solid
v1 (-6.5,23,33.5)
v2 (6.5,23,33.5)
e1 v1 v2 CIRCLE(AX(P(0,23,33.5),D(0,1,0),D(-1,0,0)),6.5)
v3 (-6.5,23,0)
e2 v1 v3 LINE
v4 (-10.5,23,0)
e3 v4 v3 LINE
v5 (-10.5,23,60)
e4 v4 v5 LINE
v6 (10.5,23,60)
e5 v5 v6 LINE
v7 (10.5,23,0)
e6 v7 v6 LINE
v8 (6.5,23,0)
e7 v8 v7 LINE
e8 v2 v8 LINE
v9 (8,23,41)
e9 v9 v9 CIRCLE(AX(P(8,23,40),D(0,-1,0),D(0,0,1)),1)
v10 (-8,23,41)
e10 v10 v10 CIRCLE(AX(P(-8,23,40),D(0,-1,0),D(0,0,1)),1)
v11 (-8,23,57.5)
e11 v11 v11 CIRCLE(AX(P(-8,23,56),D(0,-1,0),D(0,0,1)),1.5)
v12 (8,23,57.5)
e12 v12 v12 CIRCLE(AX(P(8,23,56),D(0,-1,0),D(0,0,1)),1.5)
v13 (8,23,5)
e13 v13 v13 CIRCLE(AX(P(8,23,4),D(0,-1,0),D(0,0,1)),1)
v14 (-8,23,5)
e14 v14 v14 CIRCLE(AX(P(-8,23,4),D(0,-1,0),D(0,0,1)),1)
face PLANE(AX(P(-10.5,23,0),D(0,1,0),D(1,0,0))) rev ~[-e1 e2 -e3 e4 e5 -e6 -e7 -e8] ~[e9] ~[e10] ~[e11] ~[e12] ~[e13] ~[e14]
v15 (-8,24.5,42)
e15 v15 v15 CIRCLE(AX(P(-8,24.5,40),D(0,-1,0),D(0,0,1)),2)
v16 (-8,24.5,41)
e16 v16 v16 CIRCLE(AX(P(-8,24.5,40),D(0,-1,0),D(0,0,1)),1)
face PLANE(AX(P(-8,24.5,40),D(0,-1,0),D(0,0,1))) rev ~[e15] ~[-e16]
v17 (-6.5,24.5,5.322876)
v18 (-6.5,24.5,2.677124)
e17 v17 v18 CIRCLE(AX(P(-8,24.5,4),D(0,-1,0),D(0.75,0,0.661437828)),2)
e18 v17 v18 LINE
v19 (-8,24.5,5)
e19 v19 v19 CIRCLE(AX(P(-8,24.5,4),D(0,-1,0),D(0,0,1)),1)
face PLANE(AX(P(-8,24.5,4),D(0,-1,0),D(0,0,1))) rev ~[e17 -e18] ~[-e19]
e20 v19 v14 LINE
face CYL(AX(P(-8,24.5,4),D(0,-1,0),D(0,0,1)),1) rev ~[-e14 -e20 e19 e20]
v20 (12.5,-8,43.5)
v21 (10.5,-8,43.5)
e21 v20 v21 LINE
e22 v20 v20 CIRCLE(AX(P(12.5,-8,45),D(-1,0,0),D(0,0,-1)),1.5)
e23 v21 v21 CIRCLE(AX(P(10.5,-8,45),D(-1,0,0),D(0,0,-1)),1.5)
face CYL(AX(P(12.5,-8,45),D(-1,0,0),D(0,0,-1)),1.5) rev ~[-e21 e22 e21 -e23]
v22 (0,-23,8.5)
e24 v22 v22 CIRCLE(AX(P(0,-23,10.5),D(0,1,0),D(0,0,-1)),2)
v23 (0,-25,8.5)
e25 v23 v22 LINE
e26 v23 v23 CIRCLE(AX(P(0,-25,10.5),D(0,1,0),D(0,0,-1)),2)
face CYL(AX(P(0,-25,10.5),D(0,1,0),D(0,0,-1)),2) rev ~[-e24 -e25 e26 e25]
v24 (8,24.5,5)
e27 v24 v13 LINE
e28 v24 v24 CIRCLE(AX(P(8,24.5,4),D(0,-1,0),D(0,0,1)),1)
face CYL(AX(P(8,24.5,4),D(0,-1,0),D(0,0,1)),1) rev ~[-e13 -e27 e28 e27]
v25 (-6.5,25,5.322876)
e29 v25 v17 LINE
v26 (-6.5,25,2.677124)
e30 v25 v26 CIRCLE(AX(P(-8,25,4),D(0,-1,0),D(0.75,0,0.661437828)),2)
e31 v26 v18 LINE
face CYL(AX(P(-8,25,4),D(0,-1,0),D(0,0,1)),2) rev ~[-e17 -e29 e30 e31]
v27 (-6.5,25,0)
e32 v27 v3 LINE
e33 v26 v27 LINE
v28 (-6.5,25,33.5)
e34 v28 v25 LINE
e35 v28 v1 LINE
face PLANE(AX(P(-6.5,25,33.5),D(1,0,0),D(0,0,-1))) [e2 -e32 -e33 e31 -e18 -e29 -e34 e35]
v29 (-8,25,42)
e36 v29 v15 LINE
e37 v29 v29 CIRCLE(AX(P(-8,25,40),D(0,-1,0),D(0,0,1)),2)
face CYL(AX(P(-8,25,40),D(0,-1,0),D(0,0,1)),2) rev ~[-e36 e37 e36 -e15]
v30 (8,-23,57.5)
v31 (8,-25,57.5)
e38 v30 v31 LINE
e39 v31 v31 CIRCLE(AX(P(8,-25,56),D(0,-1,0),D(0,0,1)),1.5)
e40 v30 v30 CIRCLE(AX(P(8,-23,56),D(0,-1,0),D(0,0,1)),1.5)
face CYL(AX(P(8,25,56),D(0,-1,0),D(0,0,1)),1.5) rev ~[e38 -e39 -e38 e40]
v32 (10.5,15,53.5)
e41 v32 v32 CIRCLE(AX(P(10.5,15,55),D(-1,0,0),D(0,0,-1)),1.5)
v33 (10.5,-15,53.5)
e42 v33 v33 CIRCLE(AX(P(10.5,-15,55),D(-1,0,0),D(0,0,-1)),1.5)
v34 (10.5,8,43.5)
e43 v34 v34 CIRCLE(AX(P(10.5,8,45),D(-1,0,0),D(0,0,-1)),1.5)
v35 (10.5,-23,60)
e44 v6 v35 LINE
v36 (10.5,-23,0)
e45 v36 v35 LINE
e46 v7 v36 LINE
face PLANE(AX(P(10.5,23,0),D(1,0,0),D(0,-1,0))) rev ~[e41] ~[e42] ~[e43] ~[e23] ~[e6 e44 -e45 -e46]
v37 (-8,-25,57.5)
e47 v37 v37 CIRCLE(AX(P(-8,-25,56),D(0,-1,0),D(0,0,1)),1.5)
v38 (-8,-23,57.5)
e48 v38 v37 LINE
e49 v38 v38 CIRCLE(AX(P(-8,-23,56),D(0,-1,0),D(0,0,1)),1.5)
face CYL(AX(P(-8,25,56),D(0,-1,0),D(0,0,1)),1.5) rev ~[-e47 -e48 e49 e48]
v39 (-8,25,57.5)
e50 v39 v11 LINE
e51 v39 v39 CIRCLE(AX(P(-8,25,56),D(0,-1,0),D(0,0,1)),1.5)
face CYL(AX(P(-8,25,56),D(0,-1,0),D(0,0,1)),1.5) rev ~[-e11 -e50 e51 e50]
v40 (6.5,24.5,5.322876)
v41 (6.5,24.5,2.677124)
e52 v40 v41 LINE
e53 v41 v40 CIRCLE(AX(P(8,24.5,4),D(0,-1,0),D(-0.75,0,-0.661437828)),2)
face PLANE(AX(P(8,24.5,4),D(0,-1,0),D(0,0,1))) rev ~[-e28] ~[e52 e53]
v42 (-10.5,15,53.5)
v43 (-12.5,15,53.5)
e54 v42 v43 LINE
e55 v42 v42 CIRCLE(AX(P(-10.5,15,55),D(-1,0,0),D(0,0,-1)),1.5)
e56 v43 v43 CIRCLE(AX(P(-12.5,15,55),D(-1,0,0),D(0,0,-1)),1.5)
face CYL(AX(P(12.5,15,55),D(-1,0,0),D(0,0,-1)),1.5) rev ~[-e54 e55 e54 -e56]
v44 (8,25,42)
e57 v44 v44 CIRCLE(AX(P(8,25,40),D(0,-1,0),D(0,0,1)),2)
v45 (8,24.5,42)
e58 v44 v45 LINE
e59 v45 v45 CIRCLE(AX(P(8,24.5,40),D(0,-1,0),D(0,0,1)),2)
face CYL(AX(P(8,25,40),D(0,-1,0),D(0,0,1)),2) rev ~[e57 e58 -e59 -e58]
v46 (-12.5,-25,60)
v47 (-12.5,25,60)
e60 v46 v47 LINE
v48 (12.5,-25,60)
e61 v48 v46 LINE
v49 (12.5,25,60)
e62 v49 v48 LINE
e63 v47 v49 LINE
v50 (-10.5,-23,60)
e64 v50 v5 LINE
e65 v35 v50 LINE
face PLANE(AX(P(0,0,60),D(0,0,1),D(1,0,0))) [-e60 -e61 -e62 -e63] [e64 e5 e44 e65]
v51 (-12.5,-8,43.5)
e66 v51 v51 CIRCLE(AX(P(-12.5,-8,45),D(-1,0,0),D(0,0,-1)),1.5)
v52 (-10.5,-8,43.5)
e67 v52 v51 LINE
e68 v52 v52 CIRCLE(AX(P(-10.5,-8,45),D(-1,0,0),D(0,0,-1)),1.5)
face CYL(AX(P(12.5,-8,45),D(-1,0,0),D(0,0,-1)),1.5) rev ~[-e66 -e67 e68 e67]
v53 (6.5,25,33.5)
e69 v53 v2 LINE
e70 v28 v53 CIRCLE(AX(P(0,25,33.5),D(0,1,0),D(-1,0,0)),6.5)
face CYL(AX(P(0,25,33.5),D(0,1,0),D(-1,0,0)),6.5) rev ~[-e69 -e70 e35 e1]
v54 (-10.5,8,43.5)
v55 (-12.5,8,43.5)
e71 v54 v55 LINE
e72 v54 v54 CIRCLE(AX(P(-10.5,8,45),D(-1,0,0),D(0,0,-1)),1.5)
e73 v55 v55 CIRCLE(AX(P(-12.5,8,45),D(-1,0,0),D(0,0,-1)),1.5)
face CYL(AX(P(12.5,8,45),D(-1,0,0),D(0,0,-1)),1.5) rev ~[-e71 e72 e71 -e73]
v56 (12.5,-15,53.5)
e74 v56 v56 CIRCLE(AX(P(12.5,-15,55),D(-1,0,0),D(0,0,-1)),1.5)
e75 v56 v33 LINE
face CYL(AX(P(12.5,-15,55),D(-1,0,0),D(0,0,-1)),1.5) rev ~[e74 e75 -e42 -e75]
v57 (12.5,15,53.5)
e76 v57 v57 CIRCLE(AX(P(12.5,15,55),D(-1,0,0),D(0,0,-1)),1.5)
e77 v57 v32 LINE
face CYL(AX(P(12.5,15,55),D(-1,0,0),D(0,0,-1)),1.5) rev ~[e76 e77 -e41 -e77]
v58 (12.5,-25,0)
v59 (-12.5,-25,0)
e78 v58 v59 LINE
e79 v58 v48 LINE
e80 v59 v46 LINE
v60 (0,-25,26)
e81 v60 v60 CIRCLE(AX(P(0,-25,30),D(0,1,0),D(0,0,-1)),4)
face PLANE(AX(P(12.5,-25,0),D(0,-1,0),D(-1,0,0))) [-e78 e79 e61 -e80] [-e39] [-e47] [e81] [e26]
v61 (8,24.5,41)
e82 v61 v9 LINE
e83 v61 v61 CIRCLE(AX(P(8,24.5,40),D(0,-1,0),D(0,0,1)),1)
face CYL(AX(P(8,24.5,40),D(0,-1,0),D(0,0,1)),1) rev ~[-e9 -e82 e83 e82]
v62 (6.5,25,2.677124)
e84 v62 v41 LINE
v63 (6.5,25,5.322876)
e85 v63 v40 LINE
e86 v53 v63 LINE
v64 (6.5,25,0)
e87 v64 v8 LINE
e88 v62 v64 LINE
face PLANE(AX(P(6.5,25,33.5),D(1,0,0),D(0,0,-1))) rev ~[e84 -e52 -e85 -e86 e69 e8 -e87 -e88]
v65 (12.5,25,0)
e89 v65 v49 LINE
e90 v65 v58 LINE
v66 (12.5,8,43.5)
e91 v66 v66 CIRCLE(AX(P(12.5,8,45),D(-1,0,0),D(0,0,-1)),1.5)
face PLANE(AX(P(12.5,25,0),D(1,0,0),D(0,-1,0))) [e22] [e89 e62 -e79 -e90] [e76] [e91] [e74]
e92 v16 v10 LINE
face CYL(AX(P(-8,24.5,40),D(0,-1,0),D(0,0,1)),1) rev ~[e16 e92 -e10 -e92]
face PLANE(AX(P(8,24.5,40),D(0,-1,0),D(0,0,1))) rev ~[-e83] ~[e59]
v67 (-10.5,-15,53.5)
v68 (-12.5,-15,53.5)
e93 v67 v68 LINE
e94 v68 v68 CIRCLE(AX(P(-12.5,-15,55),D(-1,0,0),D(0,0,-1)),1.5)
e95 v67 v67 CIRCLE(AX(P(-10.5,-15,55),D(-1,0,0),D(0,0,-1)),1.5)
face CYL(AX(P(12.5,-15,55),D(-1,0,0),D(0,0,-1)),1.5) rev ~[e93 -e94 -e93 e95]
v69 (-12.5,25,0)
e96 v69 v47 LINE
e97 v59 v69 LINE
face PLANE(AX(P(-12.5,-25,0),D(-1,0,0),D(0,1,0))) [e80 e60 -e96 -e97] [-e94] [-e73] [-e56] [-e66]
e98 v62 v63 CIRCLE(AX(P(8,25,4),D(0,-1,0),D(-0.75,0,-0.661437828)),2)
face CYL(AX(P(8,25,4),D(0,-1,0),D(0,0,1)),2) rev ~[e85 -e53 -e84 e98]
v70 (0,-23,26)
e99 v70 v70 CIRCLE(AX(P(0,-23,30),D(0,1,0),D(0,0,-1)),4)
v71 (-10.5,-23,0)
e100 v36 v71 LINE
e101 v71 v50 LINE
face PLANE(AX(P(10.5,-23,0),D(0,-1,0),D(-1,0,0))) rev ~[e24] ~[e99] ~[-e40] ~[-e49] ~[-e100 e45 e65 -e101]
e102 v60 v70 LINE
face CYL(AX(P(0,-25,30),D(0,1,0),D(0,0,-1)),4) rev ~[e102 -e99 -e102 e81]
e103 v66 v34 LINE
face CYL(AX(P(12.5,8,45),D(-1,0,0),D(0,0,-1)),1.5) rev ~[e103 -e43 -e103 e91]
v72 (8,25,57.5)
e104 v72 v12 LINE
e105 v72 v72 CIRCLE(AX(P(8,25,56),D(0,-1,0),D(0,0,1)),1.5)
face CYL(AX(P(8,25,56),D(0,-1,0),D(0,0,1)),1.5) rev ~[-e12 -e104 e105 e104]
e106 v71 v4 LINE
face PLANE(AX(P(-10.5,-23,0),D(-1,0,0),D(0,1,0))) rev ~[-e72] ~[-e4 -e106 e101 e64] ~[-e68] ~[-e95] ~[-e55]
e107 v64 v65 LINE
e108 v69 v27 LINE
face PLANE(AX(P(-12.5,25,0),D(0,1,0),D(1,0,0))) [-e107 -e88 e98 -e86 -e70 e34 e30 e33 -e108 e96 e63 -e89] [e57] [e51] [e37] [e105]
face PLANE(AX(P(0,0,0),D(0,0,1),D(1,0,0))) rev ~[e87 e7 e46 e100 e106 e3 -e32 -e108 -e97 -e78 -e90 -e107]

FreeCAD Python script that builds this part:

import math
import FreeCAD as App
import Part
import Sketcher
from FreeCAD import Vector
Q = App.Units.Quantity

doc = App.newDocument("Part")
body = doc.addObject("PartDesign::Body", "Body")

sketch1 = body.newObject("Sketcher::SketchObject", "Sketch")
sketch1.AttachmentSupport = (doc.getObject("XY_Plane"), [""])
sketch1.MapMode = "FlatFace"
sketch1.addGeometry([
    Part.LineSegment(Vector(12.5, 25, 0), Vector(-12.5, 25, 0)),
    Part.LineSegment(Vector(-12.5, 25, 0), Vector(-12.5, -25, 0)),
    Part.LineSegment(Vector(-12.5, -25, 0), Vector(12.5, -25, 0)),
    Part.LineSegment(Vector(12.5, -25, 0), Vector(12.5, 25, 0)),
    Part.LineSegment(Vector(-10.5, -23, 0), Vector(-10.5, 23, 0)),
    Part.LineSegment(Vector(-10.5, 23, 0), Vector(10.5, 23, 0)),
    Part.LineSegment(Vector(10.5, 23, 0), Vector(10.5, -23, 0)),
    Part.LineSegment(Vector(10.5, -23, 0), Vector(-10.5, -23, 0)),
], False)
sketch1.addConstraint([
    Sketcher.Constraint("Coincident", 0, 2, 1, 1),
    Sketcher.Constraint("Coincident", 1, 2, 2, 1),
    Sketcher.Constraint("Coincident", 2, 2, 3, 1),
    Sketcher.Constraint("Coincident", 3, 2, 0, 1),
    Sketcher.Constraint("Coincident", 4, 2, 5, 1),
    Sketcher.Constraint("Coincident", 5, 2, 6, 1),
    Sketcher.Constraint("Coincident", 6, 2, 7, 1),
    Sketcher.Constraint("Coincident", 7, 2, 4, 1),
    Sketcher.Constraint("Horizontal", 0),
    Sketcher.Constraint("Vertical", 1),
    Sketcher.Constraint("Horizontal", 2),
    Sketcher.Constraint("Vertical", 3),
    Sketcher.Constraint("Vertical", 4),
    Sketcher.Constraint("Horizontal", 5),
    Sketcher.Constraint("Vertical", 6),
    Sketcher.Constraint("Horizontal", 7),
    Sketcher.Constraint("Symmetric", 0, 2, 2, 2, -1, 1),
    Sketcher.Constraint("Symmetric", 4, 2, 6, 2, -1, 1),
    Sketcher.Constraint("DistanceX", 0, 2, 0, 1, Q("25 mm")),
    Sketcher.Constraint("DistanceX", 5, 1, 5, 2, Q("21 mm")),
    Sketcher.Constraint("DistanceY", 1, 2, 1, 1, Q("50 mm")),
    Sketcher.Constraint("DistanceY", 4, 1, 4, 2, Q("46 mm")),
])
pad1 = body.newObject("PartDesign::Pad", "Pad")
pad1.Profile = sketch1
pad1.Length = 60

sketch2 = body.newObject("Sketcher::SketchObject", "Sketch001")
sketch2.AttachmentSupport = (doc.getObject("XZ_Plane"), [""])
sketch2.MapMode = "FlatFace"
sketch2.AttachmentOffset = App.Placement(Vector(0, 0, -25), App.Rotation())
sketch2.addGeometry([
    Part.LineSegment(Vector(6.5, 0, 0), Vector(-6.5, 0, 0)),
    Part.LineSegment(Vector(-6.5, 0, 0), Vector(-6.5, 33.5, 0)),
    Part.ArcOfCircle(Part.Circle(Vector(0, 33.5, 0), Vector(0, 0, 1), 6.5), math.radians(0), math.radians(180)),
    Part.LineSegment(Vector(6.5, 33.5, 0), Vector(6.5, 0, 0)),
], False)
sketch2.addConstraint([
    Sketcher.Constraint("Coincident", 0, 2, 1, 1),
    Sketcher.Constraint("Tangent", 1, 2, 2, 2),
    Sketcher.Constraint("Tangent", 2, 1, 3, 1),
    Sketcher.Constraint("Coincident", 3, 2, 0, 1),
    Sketcher.Constraint("Horizontal", 0),
    Sketcher.Constraint("Vertical", 1),
    Sketcher.Constraint("Vertical", 3),
    Sketcher.Constraint("Symmetric", 0, 2, 3, 2, -1, 1),
    Sketcher.Constraint("Radius", 2, Q("6.5 mm")),
    Sketcher.Constraint("DistanceY", 1, 1, 1, 2, Q("33.5 mm")),
])
pocket1 = body.newObject("PartDesign::Pocket", "Pocket")
pocket1.Profile = sketch2
pocket1.Length = 2
pocket1.Reversed = True

sketch3 = body.newObject("Sketcher::SketchObject", "Sketch002")
sketch3.AttachmentSupport = (doc.getObject("XZ_Plane"), [""])
sketch3.MapMode = "FlatFace"
sketch3.AttachmentOffset = App.Placement(Vector(0, 0, -25), App.Rotation())
sketch3.addGeometry([
    Part.Circle(Vector(-8, 4, 0), Vector(0, 0, 1), 1),
    Part.Circle(Vector(8, 4, 0), Vector(0, 0, 1), 1),
    Part.Circle(Vector(8, 40, 0), Vector(0, 0, 1), 1),
    Part.Circle(Vector(-8, 40, 0), Vector(0, 0, 1), 1),
], False)
sketch3.addConstraint([
    Sketcher.Constraint("Equal", 0, 1),
    Sketcher.Constraint("Equal", 1, 2),
    Sketcher.Constraint("Equal", 2, 3),
    Sketcher.Constraint("Symmetric", 0, 3, 1, 3, -2),
    Sketcher.Constraint("Symmetric", 2, 3, 3, 3, -2),
    Sketcher.Constraint("Vertical", 1, 3, 2, 3),
    Sketcher.Constraint("Diameter", 0, Q("2 mm")),
    Sketcher.Constraint("DistanceX", 0, 3, -1, 1, Q("8 mm")),
    Sketcher.Constraint("DistanceY", -1, 1, 0, 3, Q("4 mm")),
    Sketcher.Constraint("DistanceY", -1, 1, 2, 3, Q("40 mm")),
])
doc.recompute()
hole = body.newObject("PartDesign::Hole", "Hole")
hole.Profile = sketch3
hole.ThreadType = "None"
hole.Diameter = 2
hole.DepthType = "Dimension"
hole.Depth = 2
hole.DrillPoint = "Angled"
hole.DrillPointAngle = 118
hole.HoleCutType = "Counterbore"
hole.HoleCutDiameter = 4
hole.HoleCutDepth = 0.5
hole.Reversed = True

sketch4 = body.newObject("Sketcher::SketchObject", "Sketch003")
sketch4.AttachmentSupport = (doc.getObject("XZ_Plane"), [""])
sketch4.MapMode = "FlatFace"
sketch4.AttachmentOffset = App.Placement(Vector(0, 0, 25), App.Rotation())
sketch4.addGeometry(Part.Circle(Vector(0, 10.5, 0), Vector(0, 0, 1), 2), False)
sketch4.addConstraint([
    Sketcher.Constraint("PointOnObject", 0, 3, -2),
    Sketcher.Constraint("Diameter", 0, Q("4 mm")),
    Sketcher.Constraint("DistanceY", -1, 1, 0, 3, Q("10.5 mm")),
])
doc.recompute()
hole2 = body.newObject("PartDesign::Hole", "Hole001")
hole2.Profile = sketch4
hole2.ThreadType = "None"
hole2.Diameter = 4
hole2.DepthType = "ThroughAll"

sketch5 = body.newObject("Sketcher::SketchObject", "Sketch004")
sketch5.AttachmentSupport = (doc.getObject("XZ_Plane"), [""])
sketch5.MapMode = "FlatFace"
sketch5.AttachmentOffset = App.Placement(Vector(0, 0, -25), App.Rotation())
sketch5.addGeometry([
    Part.Circle(Vector(-8, 56, 0), Vector(0, 0, 1), 1.5),
    Part.Circle(Vector(8, 56, 0), Vector(0, 0, 1), 1.5),
], False)
sketch5.addConstraint([
    Sketcher.Constraint("Equal", 0, 1),
    Sketcher.Constraint("Symmetric", 0, 3, 1, 3, -2),
    Sketcher.Constraint("Diameter", 0, Q("3 mm")),
    Sketcher.Constraint("DistanceX", 0, 3, -1, 1, Q("8 mm")),
    Sketcher.Constraint("DistanceY", -1, 1, 0, 3, Q("56 mm")),
])
doc.recompute()
hole3 = body.newObject("PartDesign::Hole", "Hole002")
hole3.Profile = sketch5
hole3.ThreadType = "None"
hole3.Diameter = 3
hole3.DepthType = "ThroughAll"
hole3.Reversed = True

sketch6 = body.newObject("Sketcher::SketchObject", "Sketch005")
sketch6.AttachmentSupport = (doc.getObject("XZ_Plane"), [""])
sketch6.MapMode = "FlatFace"
sketch6.AttachmentOffset = App.Placement(Vector(0, 0, 25), App.Rotation())
sketch6.addGeometry(Part.Circle(Vector(0, 30, 0), Vector(0, 0, 1), 4), False)
sketch6.addConstraint([
    Sketcher.Constraint("PointOnObject", 0, 3, -2),
    Sketcher.Constraint("Diameter", 0, Q("8 mm")),
    Sketcher.Constraint("DistanceY", -1, 1, 0, 3, Q("30 mm")),
])
doc.recompute()
hole4 = body.newObject("PartDesign::Hole", "Hole003")
hole4.Profile = sketch6
hole4.ThreadType = "None"
hole4.Diameter = 8
hole4.DepthType = "ThroughAll"

sketch7 = body.newObject("Sketcher::SketchObject", "Sketch006")
sketch7.AttachmentSupport = (doc.getObject("YZ_Plane"), [""])
sketch7.MapMode = "FlatFace"
sketch7.AttachmentOffset = App.Placement(Vector(0, 0, 12.5), App.Rotation())
sketch7.addGeometry([
    Part.Circle(Vector(8, 45, 0), Vector(0, 0, 1), 1.5),
    Part.Circle(Vector(-8, 45, 0), Vector(0, 0, 1), 1.5),
    Part.Circle(Vector(-15, 55, 0), Vector(0, 0, 1), 1.5),
    Part.Circle(Vector(15, 55, 0), Vector(0, 0, 1), 1.5),
], False)
sketch7.addConstraint([
    Sketcher.Constraint("Equal", 0, 1),
    Sketcher.Constraint("Equal", 1, 2),
    Sketcher.Constraint("Equal", 2, 3),
    Sketcher.Constraint("Symmetric", 0, 3, 1, 3, -2),
    Sketcher.Constraint("Symmetric", 2, 3, 3, 3, -2),
    Sketcher.Constraint("Diameter", 0, Q("3 mm")),
    Sketcher.Constraint("DistanceX", -1, 1, 0, 3, Q("8 mm")),
    Sketcher.Constraint("DistanceY", -1, 1, 0, 3, Q("45 mm")),
    Sketcher.Constraint("DistanceX", 2, 3, -1, 1, Q("15 mm")),
    Sketcher.Constraint("DistanceY", -1, 1, 2, 3, Q("55 mm")),
])
doc.recompute()
hole5 = body.newObject("PartDesign::Hole", "Hole004")
hole5.Profile = sketch7
hole5.ThreadType = "None"
hole5.Diameter = 3
hole5.DepthType = "ThroughAll"

doc.recompute()
